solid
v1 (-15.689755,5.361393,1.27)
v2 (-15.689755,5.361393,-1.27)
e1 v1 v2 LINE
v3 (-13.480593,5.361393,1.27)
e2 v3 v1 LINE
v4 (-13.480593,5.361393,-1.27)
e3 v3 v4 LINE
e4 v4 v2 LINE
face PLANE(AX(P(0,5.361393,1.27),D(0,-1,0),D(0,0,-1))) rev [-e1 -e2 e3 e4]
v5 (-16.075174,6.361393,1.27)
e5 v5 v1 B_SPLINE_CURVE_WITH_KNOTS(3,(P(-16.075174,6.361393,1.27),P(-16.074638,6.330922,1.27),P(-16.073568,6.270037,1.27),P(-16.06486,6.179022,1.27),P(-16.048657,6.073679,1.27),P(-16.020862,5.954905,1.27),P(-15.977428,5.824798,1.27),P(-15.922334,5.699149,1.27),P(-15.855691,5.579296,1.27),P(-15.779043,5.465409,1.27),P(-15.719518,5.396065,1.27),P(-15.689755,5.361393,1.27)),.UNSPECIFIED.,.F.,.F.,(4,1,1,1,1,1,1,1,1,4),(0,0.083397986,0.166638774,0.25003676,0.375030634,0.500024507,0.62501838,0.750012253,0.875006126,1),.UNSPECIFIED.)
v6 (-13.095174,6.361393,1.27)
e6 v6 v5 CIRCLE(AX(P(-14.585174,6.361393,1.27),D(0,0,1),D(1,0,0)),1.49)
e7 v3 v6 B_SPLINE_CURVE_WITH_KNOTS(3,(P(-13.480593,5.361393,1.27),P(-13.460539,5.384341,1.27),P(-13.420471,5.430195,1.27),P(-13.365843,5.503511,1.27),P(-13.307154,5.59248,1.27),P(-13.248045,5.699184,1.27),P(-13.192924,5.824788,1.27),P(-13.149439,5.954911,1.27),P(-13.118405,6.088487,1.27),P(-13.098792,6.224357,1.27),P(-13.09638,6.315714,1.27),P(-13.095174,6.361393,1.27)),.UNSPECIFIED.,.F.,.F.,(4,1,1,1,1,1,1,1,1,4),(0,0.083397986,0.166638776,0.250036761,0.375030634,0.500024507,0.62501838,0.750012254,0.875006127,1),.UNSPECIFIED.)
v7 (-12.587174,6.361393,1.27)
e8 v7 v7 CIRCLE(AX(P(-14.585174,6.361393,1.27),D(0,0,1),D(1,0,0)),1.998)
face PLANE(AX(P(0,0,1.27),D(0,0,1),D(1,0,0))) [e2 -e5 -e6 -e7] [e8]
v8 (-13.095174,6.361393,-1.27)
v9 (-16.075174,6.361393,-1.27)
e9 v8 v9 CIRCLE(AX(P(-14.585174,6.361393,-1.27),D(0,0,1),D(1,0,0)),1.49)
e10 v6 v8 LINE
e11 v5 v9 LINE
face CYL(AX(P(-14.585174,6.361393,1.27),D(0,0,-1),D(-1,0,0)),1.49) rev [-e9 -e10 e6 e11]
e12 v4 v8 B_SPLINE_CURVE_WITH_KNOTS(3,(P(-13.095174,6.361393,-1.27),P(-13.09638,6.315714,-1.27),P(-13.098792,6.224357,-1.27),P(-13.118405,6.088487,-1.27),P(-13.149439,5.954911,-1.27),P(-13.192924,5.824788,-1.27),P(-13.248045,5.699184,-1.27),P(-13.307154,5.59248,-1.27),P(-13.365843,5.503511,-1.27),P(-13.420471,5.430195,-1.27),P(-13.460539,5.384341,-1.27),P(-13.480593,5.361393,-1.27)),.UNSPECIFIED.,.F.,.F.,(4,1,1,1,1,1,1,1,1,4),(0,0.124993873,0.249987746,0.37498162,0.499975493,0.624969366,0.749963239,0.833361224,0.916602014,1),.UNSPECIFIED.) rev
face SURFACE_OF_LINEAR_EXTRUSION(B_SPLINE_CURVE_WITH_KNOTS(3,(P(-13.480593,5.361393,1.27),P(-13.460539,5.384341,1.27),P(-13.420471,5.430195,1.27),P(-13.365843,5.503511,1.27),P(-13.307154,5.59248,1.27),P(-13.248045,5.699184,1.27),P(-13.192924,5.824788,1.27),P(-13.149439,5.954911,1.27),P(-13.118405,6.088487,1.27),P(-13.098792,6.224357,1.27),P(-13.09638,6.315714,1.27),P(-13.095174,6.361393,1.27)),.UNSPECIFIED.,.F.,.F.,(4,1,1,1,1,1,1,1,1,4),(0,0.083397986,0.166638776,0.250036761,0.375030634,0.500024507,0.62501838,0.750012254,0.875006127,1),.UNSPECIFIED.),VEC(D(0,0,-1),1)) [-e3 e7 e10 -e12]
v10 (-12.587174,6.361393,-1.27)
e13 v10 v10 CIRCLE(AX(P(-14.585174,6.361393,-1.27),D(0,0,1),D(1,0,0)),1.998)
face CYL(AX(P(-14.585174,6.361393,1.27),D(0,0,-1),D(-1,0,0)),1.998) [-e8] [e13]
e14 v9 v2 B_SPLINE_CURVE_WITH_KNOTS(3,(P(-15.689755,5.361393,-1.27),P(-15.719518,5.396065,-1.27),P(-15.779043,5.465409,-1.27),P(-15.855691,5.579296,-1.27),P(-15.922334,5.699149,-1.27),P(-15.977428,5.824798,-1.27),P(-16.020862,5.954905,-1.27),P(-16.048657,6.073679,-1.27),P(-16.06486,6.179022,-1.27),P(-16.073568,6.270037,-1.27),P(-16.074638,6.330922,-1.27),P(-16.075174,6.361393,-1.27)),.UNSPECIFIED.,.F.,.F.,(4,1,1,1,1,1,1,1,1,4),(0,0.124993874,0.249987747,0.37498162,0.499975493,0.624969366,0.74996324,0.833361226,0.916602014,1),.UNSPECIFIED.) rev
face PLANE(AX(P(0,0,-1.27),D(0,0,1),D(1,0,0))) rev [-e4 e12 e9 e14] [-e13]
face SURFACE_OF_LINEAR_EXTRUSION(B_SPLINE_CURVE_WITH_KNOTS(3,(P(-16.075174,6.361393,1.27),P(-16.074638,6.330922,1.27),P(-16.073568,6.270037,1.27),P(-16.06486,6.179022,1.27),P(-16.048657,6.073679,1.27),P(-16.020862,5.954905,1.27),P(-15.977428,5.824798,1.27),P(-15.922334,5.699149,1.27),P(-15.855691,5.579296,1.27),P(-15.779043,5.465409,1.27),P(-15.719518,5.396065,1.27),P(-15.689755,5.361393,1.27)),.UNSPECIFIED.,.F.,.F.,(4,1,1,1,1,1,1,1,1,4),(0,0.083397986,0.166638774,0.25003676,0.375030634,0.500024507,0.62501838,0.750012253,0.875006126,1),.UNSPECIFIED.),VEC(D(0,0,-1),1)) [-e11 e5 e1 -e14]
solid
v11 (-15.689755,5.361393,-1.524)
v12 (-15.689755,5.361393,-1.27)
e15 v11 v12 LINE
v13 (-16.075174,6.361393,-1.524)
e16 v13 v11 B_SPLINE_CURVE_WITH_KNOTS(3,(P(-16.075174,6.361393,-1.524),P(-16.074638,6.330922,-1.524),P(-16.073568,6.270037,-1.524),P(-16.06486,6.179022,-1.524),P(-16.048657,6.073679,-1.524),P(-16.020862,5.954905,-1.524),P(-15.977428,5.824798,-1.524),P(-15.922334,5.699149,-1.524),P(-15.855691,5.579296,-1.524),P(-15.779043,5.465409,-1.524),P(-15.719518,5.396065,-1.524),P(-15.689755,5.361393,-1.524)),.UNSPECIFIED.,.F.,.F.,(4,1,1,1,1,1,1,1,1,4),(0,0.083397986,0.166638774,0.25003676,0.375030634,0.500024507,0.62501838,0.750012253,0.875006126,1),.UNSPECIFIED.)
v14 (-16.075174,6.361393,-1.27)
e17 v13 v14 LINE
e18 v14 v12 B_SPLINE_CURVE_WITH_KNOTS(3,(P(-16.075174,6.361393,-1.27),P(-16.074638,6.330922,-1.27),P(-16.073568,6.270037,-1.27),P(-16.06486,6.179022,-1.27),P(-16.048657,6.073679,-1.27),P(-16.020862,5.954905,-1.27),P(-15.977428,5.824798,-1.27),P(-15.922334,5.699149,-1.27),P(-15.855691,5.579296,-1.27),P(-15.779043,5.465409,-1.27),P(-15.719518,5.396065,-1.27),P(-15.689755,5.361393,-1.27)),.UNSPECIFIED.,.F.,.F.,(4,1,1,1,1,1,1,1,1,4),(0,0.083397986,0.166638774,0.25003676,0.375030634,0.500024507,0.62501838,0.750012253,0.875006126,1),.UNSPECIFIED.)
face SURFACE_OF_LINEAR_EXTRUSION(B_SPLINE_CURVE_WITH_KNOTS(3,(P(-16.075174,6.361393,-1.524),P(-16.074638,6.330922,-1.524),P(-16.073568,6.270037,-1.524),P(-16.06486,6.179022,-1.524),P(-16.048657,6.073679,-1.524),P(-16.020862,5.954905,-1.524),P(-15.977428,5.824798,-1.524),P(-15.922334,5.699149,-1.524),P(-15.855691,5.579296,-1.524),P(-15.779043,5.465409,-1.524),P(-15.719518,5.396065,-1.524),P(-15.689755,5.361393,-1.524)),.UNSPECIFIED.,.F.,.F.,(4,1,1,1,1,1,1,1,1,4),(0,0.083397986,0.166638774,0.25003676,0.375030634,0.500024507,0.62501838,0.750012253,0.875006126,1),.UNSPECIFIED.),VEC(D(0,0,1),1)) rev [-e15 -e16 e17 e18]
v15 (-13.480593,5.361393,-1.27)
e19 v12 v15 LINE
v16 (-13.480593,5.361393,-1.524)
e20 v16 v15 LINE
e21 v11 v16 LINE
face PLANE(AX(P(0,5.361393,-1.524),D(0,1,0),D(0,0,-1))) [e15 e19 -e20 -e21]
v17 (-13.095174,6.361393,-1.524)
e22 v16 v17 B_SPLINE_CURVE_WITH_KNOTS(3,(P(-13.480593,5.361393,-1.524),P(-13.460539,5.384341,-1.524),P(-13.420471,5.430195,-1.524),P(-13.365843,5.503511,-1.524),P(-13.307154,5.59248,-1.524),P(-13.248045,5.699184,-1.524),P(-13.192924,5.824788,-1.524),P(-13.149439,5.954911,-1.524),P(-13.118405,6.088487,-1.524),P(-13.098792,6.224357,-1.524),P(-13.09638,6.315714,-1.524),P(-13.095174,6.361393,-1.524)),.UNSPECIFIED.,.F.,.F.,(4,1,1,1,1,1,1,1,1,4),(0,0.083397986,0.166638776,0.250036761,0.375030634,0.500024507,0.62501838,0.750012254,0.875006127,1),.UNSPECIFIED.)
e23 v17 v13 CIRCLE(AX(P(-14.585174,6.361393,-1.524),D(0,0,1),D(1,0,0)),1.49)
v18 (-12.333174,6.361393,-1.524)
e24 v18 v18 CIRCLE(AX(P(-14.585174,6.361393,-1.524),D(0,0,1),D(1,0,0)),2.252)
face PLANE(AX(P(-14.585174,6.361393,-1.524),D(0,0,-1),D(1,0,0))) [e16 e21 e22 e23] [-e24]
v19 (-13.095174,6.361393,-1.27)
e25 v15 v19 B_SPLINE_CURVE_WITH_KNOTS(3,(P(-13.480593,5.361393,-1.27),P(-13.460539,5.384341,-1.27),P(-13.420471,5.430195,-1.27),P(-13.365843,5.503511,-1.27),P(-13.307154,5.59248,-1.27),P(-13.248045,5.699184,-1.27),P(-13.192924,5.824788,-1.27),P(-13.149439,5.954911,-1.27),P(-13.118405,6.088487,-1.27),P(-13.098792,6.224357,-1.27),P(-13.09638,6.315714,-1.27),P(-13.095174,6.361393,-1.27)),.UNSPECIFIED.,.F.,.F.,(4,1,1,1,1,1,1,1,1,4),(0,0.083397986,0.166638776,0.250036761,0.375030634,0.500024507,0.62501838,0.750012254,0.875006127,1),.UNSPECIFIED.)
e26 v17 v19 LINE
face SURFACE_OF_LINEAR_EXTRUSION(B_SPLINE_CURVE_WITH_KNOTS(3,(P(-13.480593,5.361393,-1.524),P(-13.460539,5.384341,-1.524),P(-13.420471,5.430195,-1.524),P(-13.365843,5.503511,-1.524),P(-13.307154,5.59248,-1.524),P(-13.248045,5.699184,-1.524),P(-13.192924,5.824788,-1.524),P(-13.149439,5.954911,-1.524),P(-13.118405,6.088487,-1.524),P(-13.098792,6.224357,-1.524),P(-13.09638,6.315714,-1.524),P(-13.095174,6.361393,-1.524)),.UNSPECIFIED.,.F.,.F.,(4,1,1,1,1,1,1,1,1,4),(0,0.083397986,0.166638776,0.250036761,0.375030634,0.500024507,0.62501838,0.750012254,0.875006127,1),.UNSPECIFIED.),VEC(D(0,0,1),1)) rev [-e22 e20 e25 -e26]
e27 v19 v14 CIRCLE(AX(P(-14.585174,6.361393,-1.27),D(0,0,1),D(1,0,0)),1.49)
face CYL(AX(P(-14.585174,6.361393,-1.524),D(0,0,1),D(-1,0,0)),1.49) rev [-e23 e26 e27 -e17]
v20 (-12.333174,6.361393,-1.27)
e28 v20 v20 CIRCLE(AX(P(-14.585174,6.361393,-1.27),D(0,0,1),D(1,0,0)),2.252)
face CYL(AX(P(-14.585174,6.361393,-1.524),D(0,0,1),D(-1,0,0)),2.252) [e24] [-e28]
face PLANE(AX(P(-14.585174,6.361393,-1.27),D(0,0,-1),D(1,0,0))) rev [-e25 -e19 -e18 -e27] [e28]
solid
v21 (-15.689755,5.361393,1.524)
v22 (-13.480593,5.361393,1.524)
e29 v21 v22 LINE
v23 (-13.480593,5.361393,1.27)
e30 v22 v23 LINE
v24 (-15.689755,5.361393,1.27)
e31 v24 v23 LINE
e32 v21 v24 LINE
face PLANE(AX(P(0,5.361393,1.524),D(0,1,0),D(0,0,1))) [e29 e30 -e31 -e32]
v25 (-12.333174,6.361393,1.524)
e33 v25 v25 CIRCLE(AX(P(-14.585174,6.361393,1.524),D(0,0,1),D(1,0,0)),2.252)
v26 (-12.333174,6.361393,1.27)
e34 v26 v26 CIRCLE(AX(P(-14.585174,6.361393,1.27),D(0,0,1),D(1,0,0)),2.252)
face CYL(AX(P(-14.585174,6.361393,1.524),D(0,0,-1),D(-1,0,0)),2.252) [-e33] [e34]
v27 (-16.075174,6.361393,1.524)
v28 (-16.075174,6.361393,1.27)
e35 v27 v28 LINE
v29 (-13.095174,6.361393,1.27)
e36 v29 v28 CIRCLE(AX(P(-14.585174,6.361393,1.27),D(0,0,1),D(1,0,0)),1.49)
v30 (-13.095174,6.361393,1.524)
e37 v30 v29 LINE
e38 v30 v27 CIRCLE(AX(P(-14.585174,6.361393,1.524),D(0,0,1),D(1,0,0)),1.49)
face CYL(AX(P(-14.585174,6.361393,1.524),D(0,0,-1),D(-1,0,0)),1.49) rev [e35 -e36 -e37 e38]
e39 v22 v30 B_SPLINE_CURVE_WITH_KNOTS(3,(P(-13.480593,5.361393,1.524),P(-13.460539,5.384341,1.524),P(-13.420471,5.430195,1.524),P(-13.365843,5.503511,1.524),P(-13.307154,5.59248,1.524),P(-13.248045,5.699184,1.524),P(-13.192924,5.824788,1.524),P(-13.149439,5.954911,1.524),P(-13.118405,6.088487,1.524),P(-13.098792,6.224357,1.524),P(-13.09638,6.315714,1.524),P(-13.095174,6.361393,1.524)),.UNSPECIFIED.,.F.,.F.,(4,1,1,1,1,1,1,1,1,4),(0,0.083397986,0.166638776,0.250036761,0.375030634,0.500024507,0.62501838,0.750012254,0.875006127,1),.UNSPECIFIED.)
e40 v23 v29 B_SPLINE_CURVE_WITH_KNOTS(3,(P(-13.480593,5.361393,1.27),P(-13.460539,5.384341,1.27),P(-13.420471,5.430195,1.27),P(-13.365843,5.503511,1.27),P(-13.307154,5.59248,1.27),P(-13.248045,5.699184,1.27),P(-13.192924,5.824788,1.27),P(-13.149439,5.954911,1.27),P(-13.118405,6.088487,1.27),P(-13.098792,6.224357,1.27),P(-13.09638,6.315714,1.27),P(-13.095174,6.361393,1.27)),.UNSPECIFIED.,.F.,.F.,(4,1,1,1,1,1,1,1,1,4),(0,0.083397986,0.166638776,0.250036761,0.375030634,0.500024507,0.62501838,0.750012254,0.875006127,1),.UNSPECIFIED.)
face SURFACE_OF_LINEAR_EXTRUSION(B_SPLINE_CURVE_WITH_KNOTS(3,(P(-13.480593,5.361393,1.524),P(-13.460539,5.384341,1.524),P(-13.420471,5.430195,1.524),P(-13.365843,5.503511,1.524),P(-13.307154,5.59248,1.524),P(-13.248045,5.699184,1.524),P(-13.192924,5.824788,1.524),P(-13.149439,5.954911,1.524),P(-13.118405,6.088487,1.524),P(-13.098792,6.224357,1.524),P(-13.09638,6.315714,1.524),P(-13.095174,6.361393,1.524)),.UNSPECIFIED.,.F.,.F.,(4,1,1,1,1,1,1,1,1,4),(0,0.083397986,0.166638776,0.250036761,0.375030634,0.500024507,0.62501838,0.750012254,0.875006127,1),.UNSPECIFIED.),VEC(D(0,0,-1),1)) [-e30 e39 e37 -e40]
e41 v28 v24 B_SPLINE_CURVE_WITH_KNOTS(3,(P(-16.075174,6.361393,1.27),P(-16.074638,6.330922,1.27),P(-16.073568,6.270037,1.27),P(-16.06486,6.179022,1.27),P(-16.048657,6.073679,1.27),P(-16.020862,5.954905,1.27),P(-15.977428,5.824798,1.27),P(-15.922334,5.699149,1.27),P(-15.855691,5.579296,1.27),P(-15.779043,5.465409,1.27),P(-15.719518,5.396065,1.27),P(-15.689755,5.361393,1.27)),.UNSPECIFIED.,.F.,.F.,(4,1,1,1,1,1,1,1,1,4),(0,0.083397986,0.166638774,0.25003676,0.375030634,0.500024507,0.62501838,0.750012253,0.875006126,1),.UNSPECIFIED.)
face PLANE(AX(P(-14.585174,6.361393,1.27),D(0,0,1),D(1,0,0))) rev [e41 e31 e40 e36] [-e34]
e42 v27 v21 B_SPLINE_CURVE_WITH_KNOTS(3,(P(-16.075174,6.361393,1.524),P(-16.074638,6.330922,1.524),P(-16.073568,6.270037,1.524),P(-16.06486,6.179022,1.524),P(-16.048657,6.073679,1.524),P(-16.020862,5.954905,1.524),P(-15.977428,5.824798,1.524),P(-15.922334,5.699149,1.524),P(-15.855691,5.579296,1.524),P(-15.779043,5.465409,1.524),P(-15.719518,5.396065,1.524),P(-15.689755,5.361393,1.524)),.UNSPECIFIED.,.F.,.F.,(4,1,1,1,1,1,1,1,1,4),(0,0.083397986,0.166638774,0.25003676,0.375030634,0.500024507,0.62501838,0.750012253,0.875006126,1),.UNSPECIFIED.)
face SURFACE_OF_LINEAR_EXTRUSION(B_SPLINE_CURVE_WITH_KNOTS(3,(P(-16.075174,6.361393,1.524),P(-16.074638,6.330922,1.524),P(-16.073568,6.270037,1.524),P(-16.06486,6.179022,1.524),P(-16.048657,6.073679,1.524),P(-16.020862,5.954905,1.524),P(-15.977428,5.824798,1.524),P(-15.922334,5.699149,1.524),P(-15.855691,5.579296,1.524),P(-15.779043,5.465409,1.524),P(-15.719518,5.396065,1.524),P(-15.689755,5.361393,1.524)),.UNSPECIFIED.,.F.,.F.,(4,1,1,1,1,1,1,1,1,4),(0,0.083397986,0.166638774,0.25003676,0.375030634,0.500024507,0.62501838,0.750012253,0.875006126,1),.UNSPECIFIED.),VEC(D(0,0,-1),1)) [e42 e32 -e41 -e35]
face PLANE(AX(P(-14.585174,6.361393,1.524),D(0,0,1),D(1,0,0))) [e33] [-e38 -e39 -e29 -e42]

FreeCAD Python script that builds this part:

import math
import FreeCAD as App
import Part
import Sketcher
Q = App.Units.Quantity

doc = App.newDocument("Part")
body = doc.addObject("PartDesign::Body", "Body")

sketch1 = body.newObject("Sketcher::SketchObject", "Sketch")
sketch1.AttachmentSupport = (doc.getObject("XY_Plane"), [""])
sketch1.MapMode = "FlatFace"
sketch1.addGeometry(Part.Circle(App.Vector(-14.585174, 6.361393, 0), App.Vector(0, 0, 1), 1.998), False)
sketch1.addGeometry(Part.BSplineCurve([App.Vector(-13.480593, 5.361393, 0), App.Vector(-13.460539, 5.384341, 0), App.Vector(-13.420471, 5.430195, 0), App.Vector(-13.365843, 5.503511, 0), App.Vector(-13.307154, 5.59248, 0), App.Vector(-13.248045, 5.699184, 0), App.Vector(-13.192924, 5.824788, 0), App.Vector(-13.149439, 5.954911, 0), App.Vector(-13.118405, 6.088487, 0), App.Vector(-13.098792, 6.224357, 0), App.Vector(-13.09638, 6.315714, 0), App.Vector(-13.095174, 6.361393, 0)], [4, 1, 1, 1, 1, 1, 1, 1, 1, 4], [0, 0.083397986, 0.166638776, 0.250036761, 0.375030634, 0.500024507, 0.62501838, 0.750012254, 0.875006127, 1], False, 3, [1, 1, 1, 1, 1, 1, 1, 1, 1, 1, 1, 1], False), False)
sketch1.addGeometry(Part.LineSegment(App.Vector(-13.480593, 5.361393, 0), App.Vector(-15.689755, 5.361393, 0)), False)
sketch1.addGeometry(Part.BSplineCurve([App.Vector(-16.075174, 6.361393, 0), App.Vector(-16.074638, 6.330922, 0), App.Vector(-16.073568, 6.270037, 0), App.Vector(-16.06486, 6.179022, 0), App.Vector(-16.048657, 6.073679, 0), App.Vector(-16.020862, 5.954905, 0), App.Vector(-15.977428, 5.824798, 0), App.Vector(-15.922334, 5.699149, 0), App.Vector(-15.855691, 5.579296, 0), App.Vector(-15.779043, 5.465409, 0), App.Vector(-15.719518, 5.396065, 0), App.Vector(-15.689755, 5.361393, 0)], [4, 1, 1, 1, 1, 1, 1, 1, 1, 4], [0, 0.083397986, 0.166638774, 0.25003676, 0.375030634, 0.500024507, 0.62501838, 0.750012253, 0.875006126, 1], False, 3, [1, 1, 1, 1, 1, 1, 1, 1, 1, 1, 1, 1], False), False)
sketch1.addGeometry(Part.ArcOfCircle(Part.Circle(App.Vector(-14.585174, 6.361393, 0), App.Vector(0, 0, 1), 1.49), math.radians(0), math.radians(180)), False)
sketch1.addConstraint(Sketcher.Constraint("Block", 1))
sketch1.addConstraint(Sketcher.Constraint("Block", 3))
sketch1.addConstraint(Sketcher.Constraint("Coincident", 1, 1, 2, 1))
sketch1.addConstraint(Sketcher.Constraint("Coincident", 2, 2, 3, 2))
sketch1.addConstraint(Sketcher.Constraint("Coincident", 3, 1, 4, 2))
sketch1.addConstraint(Sketcher.Constraint("Coincident", 4, 1, 1, 2))
sketch1.addConstraint(Sketcher.Constraint("Coincident", 4, 3, 0, 3))
sketch1.addConstraint(Sketcher.Constraint("Diameter", 0, Q("3.996 mm")))
sketch1.addConstraint(Sketcher.Constraint("DistanceY", 2, 2, 0, 3, Q("1 mm")))
pad1 = body.newObject("PartDesign::Pad", "Pad")
pad1.Profile = sketch1
pad1.Length = Q("0.1 in")
pad1.Midplane = True
body2 = doc.addObject("PartDesign::Body", "Body001")

sketch2 = body2.newObject("Sketcher::SketchObject", "Sketch001")
sketch2.AttachmentSupport = (doc.getObject("XY_Plane001"), [""])
sketch2.MapMode = "FlatFace"
sketch2.AttachmentOffset = App.Placement(App.Vector(0, 0, 0.05 * 25.4), App.Rotation())
sketch2.addGeometry(Part.Circle(App.Vector(-14.585174, 6.361393, 0), App.Vector(0, 0, 1), 2.252), False)
sketch2.addGeometry(Part.BSplineCurve([App.Vector(-13.480593, 5.361393, 0), App.Vector(-13.460539, 5.384341, 0), App.Vector(-13.420471, 5.430195, 0), App.Vector(-13.365843, 5.503511, 0), App.Vector(-13.307154, 5.59248, 0), App.Vector(-13.248045, 5.699184, 0), App.Vector(-13.192924, 5.824788, 0), App.Vector(-13.149439, 5.954911, 0), App.Vector(-13.118405, 6.088487, 0), App.Vector(-13.098792, 6.224357, 0), App.Vector(-13.09638, 6.315714, 0), App.Vector(-13.095174, 6.361393, 0)], [4, 1, 1, 1, 1, 1, 1, 1, 1, 4], [0, 0.083397986, 0.166638776, 0.250036761, 0.375030634, 0.500024507, 0.62501838, 0.750012254, 0.875006127, 1], False, 3, [1, 1, 1, 1, 1, 1, 1, 1, 1, 1, 1, 1], False), False)
sketch2.addGeometry(Part.LineSegment(App.Vector(-13.480593, 5.361393, 0), App.Vector(-15.689755, 5.361393, 0)), False)
sketch2.addGeometry(Part.BSplineCurve([App.Vector(-16.075174, 6.361393, 0), App.Vector(-16.074638, 6.330922, 0), App.Vector(-16.073568, 6.270037, 0), App.Vector(-16.06486, 6.179022, 0), App.Vector(-16.048657, 6.073679, 0), App.Vector(-16.020862, 5.954905, 0), App.Vector(-15.977428, 5.824798, 0), App.Vector(-15.922334, 5.699149, 0), App.Vector(-15.855691, 5.579296, 0), App.Vector(-15.779043, 5.465409, 0), App.Vector(-15.719518, 5.396065, 0), App.Vector(-15.689755, 5.361393, 0)], [4, 1, 1, 1, 1, 1, 1, 1, 1, 4], [0, 0.083397986, 0.166638774, 0.25003676, 0.375030634, 0.500024507, 0.62501838, 0.750012253, 0.875006126, 1], False, 3, [1, 1, 1, 1, 1, 1, 1, 1, 1, 1, 1, 1], False), False)
sketch2.addGeometry(Part.ArcOfCircle(Part.Circle(App.Vector(-14.585174, 6.361393, 0), App.Vector(0, 0, 1), 1.49), math.radians(0), math.radians(180)), False)
sketch2.addConstraint(Sketcher.Constraint("Block", 1))
sketch2.addConstraint(Sketcher.Constraint("Block", 3))
sketch2.addConstraint(Sketcher.Constraint("Coincident", 1, 1, 2, 1))
sketch2.addConstraint(Sketcher.Constraint("Coincident", 2, 2, 3, 2))
sketch2.addConstraint(Sketcher.Constraint("Coincident", 3, 1, 4, 2))
sketch2.addConstraint(Sketcher.Constraint("Coincident", 4, 1, 1, 2))
sketch2.addConstraint(Sketcher.Constraint("Coincident", 4, 3, 0, 3))
sketch2.addConstraint(Sketcher.Constraint("Diameter", 0, Q("4.504 mm")))
sketch2.addConstraint(Sketcher.Constraint("DistanceY", 2, 2, 0, 3, Q("1 mm")))
pad2 = body2.newObject("PartDesign::Pad", "Pad001")
pad2.Profile = sketch2
pad2.Length = Q("0.01 in")
body3 = doc.addObject("PartDesign::Body", "Body002")
doc.recompute()

mirroring = doc.addObject("Part::Mirroring", "Mirroring")
mirroring.Source = body2
mirroring.Base = App.Vector(0, 0, 0)
mirroring.Normal = App.Vector(0, 0, 1)
body3.BaseFeature = mirroring
doc.recompute()
mirroring.Visibility = False

doc.recompute()
